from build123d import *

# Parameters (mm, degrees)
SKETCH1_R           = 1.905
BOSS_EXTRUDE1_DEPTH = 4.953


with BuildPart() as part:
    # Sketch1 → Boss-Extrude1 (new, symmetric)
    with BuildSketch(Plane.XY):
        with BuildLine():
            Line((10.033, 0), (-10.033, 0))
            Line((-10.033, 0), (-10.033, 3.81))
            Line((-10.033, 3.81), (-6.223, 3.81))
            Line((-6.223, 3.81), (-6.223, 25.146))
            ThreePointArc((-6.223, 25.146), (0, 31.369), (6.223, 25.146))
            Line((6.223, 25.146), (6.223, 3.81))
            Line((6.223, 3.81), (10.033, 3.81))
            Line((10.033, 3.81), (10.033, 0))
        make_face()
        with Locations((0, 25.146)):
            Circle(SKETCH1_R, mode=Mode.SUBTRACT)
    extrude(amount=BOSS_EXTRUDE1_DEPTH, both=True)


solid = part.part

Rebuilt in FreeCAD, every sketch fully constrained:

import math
import FreeCAD as App
import Part
import Sketcher
Q = App.Units.Quantity

doc = App.newDocument("Part")
body = doc.addObject("PartDesign::Body", "Body")

# Sketch on XY plane
sketch1 = doc.addObject("Sketcher::SketchObject", "Sketch")
body.addObject(sketch1)
sketch1.AttachmentSupport = (doc.XY_Plane, [""])
sketch1.MapMode = "FlatFace"
sketch1.addGeometry(Part.LineSegment(App.Vector(-10.033, 0, 0), App.Vector(10.033, 0, 0)), False)
sketch1.addGeometry(Part.LineSegment(App.Vector(10.033, 0, 0), App.Vector(10.033, 3.81, 0)), False)
sketch1.addGeometry(Part.LineSegment(App.Vector(10.033, 3.81, 0), App.Vector(6.223, 3.81, 0)), False)
sketch1.addGeometry(Part.LineSegment(App.Vector(6.223, 3.81, 0), App.Vector(6.223, 25.146, 0)), False)
sketch1.addGeometry(Part.ArcOfCircle(Part.Circle(App.Vector(0, 25.146, 0), App.Vector(0, 0, 1), 6.223), math.radians(0), math.radians(180)), False)
sketch1.addGeometry(Part.LineSegment(App.Vector(-6.223, 25.146, 0), App.Vector(-6.223, 3.81, 0)), False)
sketch1.addGeometry(Part.LineSegment(App.Vector(-6.223, 3.81, 0), App.Vector(-10.033, 3.81, 0)), False)
sketch1.addGeometry(Part.LineSegment(App.Vector(-10.033, 3.81, 0), App.Vector(-10.033, 0, 0)), False)
sketch1.addGeometry(Part.Circle(App.Vector(0, 25.146, 0), App.Vector(0, 0, 1), 1.905), False)
sketch1.addConstraint(Sketcher.Constraint("Coincident", 0, 2, 1, 1))
sketch1.addConstraint(Sketcher.Constraint("Coincident", 1, 2, 2, 1))
sketch1.addConstraint(Sketcher.Constraint("Coincident", 2, 2, 3, 1))
sketch1.addConstraint(Sketcher.Constraint("Tangent", 3, 2, 4, 1))
sketch1.addConstraint(Sketcher.Constraint("Tangent", 4, 2, 5, 1))
sketch1.addConstraint(Sketcher.Constraint("Coincident", 5, 2, 6, 1))
sketch1.addConstraint(Sketcher.Constraint("Coincident", 6, 2, 7, 1))
sketch1.addConstraint(Sketcher.Constraint("Coincident", 7, 2, 0, 1))
sketch1.addConstraint(Sketcher.Constraint("Horizontal", 0))
sketch1.addConstraint(Sketcher.Constraint("Vertical", 1))
sketch1.addConstraint(Sketcher.Constraint("Horizontal", 2))
sketch1.addConstraint(Sketcher.Constraint("Vertical", 3))
sketch1.addConstraint(Sketcher.Constraint("Vertical", 5))
sketch1.addConstraint(Sketcher.Constraint("Horizontal", 6))
sketch1.addConstraint(Sketcher.Constraint("Vertical", 7))
sketch1.addConstraint(Sketcher.Constraint("Coincident", 8, 3, 4, 3))
sketch1.addConstraint(Sketcher.Constraint("Symmetric", 0, 2, 7, 2, -1, 1))
sketch1.addConstraint(Sketcher.Constraint("Symmetric", 2, 2, 5, 2, -2))
sketch1.addConstraint(Sketcher.Constraint("Equal", 6, 1))
sketch1.addConstraint(Sketcher.Constraint("Diameter", 8, Q("0.15 in")))
sketch1.addConstraint(Sketcher.Constraint("Radius", 4, Q("0.245 in")))
sketch1.addConstraint(Sketcher.Constraint("DistanceX", 0, 1, 0, 2, Q("0.79 in")))
sketch1.addConstraint(Sketcher.Constraint("DistanceY", 3, 1, 3, 2, Q("0.84 in")))
pad1 = doc.addObject("PartDesign::Pad", "Pad")
body.addObject(pad1)
pad1.Profile = sketch1
pad1.Length = Q("0.39 in")
pad1.Midplane = True

doc.recompute()
